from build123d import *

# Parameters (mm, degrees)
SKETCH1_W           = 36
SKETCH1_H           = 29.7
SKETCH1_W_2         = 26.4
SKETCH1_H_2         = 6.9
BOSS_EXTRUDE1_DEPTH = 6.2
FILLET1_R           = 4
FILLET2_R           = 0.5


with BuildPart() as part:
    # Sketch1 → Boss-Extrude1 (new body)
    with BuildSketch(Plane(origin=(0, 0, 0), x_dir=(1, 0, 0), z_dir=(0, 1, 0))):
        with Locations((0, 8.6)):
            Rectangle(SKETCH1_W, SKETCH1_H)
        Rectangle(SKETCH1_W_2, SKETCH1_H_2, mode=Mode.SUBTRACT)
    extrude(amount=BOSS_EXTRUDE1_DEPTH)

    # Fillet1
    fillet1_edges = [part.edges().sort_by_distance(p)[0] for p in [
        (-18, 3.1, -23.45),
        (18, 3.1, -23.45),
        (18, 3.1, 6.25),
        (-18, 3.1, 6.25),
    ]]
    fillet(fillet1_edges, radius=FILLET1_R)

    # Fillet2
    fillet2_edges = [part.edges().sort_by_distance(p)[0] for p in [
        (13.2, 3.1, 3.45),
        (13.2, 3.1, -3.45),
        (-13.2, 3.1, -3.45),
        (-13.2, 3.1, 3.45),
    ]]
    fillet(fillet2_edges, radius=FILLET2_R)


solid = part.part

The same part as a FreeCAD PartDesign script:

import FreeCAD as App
import Part
import Sketcher
from FreeCAD import Vector
Q = App.Units.Quantity


def edges_at(feature, points):
    """Names of the edges that pass closest to the given points."""
    edges = feature.Shape.Edges
    near = lambda p: min(range(len(edges)), key=lambda i: edges[i].distToShape(Part.Vertex(*p))[0])
    return sorted({f"Edge{near(p) + 1}" for p in points})


def add_polygon(sketch, points):
    """Adds a closed chain of lines whose ends are joined by coincident constraints."""
    first, n = sketch.GeometryCount, len(points)
    for a, b in zip(points, points[1:] + points[:1]):
        sketch.addGeometry(Part.LineSegment(App.Vector(*a, 0), App.Vector(*b, 0)), False)
    for i in range(n):
        sketch.addConstraint(Sketcher.Constraint("Coincident", first + i, 2, first + (i + 1) % n, 1))

doc = App.newDocument("Part")
body = doc.addObject("PartDesign::Body", "Body")

sketch1 = body.newObject("Sketcher::SketchObject", "Sketch")
sketch1.AttachmentSupport = (doc.getObject("XZ_Plane"), [""])
sketch1.MapMode = "FlatFace"
add_polygon(sketch1, [(-18, -23), (-18, 6), (18, 6), (18, -23)])
add_polygon(sketch1, [(13, 3), (-13, 3), (-13, -3), (13, -3)])
sketch1.addConstraint(Sketcher.Constraint("Vertical", 0))
sketch1.addConstraint(Sketcher.Constraint("Horizontal", 1))
sketch1.addConstraint(Sketcher.Constraint("Vertical", 2))
sketch1.addConstraint(Sketcher.Constraint("Horizontal", 3))
sketch1.addConstraint(Sketcher.Constraint("Horizontal", 4))
sketch1.addConstraint(Sketcher.Constraint("Vertical", 5))
sketch1.addConstraint(Sketcher.Constraint("Horizontal", 6))
sketch1.addConstraint(Sketcher.Constraint("Vertical", 7))
sketch1.addConstraint(Sketcher.Constraint("Symmetric", 4, 2, 6, 2, -1, 1))
sketch1.addConstraint(Sketcher.Constraint("DistanceX", 1, 1, 1, 2, Q("36 mm")))
sketch1.addConstraint(Sketcher.Constraint("DistanceX", 4, 2, 4, 1, Q("26.4 mm")))
sketch1.addConstraint(Sketcher.Constraint("DistanceY", 0, 1, 0, 2, Q("29.7 mm")))
sketch1.addConstraint(Sketcher.Constraint("DistanceY", 5, 2, 5, 1, Q("6.9 mm")))
sketch1.addConstraint(Sketcher.Constraint("DistanceX", 0, 2, -1, 1, Q("18 mm")))
sketch1.addConstraint(Sketcher.Constraint("DistanceY", 3, 2, 5, 2, Q("20 mm")))
pad1 = body.newObject("PartDesign::Pad", "Pad")
pad1.Profile = sketch1
pad1.Length = 6.2
pad1.Reversed = True
doc.recompute()

fillet = body.newObject("PartDesign::Fillet", "Fillet")
fillet.Base = (pad1, edges_at(pad1, [
    (-18, 3.1, -23.45),
    (18, 3.1, -23.45),
    (18, 3.1, 6.25),
    (-18, 3.1, 6.25),
]))
fillet.Radius = 4
doc.recompute()

fillet2 = body.newObject("PartDesign::Fillet", "Fillet001")
fillet2.Base = (fillet, edges_at(fillet, [
    (13.2, 3.1, 3.45),
    (13.2, 3.1, -3.45),
    (-13.2, 3.1, -3.45),
    (-13.2, 3.1, 3.45),
]))
fillet2.Radius = 0.5

doc.recompute()
